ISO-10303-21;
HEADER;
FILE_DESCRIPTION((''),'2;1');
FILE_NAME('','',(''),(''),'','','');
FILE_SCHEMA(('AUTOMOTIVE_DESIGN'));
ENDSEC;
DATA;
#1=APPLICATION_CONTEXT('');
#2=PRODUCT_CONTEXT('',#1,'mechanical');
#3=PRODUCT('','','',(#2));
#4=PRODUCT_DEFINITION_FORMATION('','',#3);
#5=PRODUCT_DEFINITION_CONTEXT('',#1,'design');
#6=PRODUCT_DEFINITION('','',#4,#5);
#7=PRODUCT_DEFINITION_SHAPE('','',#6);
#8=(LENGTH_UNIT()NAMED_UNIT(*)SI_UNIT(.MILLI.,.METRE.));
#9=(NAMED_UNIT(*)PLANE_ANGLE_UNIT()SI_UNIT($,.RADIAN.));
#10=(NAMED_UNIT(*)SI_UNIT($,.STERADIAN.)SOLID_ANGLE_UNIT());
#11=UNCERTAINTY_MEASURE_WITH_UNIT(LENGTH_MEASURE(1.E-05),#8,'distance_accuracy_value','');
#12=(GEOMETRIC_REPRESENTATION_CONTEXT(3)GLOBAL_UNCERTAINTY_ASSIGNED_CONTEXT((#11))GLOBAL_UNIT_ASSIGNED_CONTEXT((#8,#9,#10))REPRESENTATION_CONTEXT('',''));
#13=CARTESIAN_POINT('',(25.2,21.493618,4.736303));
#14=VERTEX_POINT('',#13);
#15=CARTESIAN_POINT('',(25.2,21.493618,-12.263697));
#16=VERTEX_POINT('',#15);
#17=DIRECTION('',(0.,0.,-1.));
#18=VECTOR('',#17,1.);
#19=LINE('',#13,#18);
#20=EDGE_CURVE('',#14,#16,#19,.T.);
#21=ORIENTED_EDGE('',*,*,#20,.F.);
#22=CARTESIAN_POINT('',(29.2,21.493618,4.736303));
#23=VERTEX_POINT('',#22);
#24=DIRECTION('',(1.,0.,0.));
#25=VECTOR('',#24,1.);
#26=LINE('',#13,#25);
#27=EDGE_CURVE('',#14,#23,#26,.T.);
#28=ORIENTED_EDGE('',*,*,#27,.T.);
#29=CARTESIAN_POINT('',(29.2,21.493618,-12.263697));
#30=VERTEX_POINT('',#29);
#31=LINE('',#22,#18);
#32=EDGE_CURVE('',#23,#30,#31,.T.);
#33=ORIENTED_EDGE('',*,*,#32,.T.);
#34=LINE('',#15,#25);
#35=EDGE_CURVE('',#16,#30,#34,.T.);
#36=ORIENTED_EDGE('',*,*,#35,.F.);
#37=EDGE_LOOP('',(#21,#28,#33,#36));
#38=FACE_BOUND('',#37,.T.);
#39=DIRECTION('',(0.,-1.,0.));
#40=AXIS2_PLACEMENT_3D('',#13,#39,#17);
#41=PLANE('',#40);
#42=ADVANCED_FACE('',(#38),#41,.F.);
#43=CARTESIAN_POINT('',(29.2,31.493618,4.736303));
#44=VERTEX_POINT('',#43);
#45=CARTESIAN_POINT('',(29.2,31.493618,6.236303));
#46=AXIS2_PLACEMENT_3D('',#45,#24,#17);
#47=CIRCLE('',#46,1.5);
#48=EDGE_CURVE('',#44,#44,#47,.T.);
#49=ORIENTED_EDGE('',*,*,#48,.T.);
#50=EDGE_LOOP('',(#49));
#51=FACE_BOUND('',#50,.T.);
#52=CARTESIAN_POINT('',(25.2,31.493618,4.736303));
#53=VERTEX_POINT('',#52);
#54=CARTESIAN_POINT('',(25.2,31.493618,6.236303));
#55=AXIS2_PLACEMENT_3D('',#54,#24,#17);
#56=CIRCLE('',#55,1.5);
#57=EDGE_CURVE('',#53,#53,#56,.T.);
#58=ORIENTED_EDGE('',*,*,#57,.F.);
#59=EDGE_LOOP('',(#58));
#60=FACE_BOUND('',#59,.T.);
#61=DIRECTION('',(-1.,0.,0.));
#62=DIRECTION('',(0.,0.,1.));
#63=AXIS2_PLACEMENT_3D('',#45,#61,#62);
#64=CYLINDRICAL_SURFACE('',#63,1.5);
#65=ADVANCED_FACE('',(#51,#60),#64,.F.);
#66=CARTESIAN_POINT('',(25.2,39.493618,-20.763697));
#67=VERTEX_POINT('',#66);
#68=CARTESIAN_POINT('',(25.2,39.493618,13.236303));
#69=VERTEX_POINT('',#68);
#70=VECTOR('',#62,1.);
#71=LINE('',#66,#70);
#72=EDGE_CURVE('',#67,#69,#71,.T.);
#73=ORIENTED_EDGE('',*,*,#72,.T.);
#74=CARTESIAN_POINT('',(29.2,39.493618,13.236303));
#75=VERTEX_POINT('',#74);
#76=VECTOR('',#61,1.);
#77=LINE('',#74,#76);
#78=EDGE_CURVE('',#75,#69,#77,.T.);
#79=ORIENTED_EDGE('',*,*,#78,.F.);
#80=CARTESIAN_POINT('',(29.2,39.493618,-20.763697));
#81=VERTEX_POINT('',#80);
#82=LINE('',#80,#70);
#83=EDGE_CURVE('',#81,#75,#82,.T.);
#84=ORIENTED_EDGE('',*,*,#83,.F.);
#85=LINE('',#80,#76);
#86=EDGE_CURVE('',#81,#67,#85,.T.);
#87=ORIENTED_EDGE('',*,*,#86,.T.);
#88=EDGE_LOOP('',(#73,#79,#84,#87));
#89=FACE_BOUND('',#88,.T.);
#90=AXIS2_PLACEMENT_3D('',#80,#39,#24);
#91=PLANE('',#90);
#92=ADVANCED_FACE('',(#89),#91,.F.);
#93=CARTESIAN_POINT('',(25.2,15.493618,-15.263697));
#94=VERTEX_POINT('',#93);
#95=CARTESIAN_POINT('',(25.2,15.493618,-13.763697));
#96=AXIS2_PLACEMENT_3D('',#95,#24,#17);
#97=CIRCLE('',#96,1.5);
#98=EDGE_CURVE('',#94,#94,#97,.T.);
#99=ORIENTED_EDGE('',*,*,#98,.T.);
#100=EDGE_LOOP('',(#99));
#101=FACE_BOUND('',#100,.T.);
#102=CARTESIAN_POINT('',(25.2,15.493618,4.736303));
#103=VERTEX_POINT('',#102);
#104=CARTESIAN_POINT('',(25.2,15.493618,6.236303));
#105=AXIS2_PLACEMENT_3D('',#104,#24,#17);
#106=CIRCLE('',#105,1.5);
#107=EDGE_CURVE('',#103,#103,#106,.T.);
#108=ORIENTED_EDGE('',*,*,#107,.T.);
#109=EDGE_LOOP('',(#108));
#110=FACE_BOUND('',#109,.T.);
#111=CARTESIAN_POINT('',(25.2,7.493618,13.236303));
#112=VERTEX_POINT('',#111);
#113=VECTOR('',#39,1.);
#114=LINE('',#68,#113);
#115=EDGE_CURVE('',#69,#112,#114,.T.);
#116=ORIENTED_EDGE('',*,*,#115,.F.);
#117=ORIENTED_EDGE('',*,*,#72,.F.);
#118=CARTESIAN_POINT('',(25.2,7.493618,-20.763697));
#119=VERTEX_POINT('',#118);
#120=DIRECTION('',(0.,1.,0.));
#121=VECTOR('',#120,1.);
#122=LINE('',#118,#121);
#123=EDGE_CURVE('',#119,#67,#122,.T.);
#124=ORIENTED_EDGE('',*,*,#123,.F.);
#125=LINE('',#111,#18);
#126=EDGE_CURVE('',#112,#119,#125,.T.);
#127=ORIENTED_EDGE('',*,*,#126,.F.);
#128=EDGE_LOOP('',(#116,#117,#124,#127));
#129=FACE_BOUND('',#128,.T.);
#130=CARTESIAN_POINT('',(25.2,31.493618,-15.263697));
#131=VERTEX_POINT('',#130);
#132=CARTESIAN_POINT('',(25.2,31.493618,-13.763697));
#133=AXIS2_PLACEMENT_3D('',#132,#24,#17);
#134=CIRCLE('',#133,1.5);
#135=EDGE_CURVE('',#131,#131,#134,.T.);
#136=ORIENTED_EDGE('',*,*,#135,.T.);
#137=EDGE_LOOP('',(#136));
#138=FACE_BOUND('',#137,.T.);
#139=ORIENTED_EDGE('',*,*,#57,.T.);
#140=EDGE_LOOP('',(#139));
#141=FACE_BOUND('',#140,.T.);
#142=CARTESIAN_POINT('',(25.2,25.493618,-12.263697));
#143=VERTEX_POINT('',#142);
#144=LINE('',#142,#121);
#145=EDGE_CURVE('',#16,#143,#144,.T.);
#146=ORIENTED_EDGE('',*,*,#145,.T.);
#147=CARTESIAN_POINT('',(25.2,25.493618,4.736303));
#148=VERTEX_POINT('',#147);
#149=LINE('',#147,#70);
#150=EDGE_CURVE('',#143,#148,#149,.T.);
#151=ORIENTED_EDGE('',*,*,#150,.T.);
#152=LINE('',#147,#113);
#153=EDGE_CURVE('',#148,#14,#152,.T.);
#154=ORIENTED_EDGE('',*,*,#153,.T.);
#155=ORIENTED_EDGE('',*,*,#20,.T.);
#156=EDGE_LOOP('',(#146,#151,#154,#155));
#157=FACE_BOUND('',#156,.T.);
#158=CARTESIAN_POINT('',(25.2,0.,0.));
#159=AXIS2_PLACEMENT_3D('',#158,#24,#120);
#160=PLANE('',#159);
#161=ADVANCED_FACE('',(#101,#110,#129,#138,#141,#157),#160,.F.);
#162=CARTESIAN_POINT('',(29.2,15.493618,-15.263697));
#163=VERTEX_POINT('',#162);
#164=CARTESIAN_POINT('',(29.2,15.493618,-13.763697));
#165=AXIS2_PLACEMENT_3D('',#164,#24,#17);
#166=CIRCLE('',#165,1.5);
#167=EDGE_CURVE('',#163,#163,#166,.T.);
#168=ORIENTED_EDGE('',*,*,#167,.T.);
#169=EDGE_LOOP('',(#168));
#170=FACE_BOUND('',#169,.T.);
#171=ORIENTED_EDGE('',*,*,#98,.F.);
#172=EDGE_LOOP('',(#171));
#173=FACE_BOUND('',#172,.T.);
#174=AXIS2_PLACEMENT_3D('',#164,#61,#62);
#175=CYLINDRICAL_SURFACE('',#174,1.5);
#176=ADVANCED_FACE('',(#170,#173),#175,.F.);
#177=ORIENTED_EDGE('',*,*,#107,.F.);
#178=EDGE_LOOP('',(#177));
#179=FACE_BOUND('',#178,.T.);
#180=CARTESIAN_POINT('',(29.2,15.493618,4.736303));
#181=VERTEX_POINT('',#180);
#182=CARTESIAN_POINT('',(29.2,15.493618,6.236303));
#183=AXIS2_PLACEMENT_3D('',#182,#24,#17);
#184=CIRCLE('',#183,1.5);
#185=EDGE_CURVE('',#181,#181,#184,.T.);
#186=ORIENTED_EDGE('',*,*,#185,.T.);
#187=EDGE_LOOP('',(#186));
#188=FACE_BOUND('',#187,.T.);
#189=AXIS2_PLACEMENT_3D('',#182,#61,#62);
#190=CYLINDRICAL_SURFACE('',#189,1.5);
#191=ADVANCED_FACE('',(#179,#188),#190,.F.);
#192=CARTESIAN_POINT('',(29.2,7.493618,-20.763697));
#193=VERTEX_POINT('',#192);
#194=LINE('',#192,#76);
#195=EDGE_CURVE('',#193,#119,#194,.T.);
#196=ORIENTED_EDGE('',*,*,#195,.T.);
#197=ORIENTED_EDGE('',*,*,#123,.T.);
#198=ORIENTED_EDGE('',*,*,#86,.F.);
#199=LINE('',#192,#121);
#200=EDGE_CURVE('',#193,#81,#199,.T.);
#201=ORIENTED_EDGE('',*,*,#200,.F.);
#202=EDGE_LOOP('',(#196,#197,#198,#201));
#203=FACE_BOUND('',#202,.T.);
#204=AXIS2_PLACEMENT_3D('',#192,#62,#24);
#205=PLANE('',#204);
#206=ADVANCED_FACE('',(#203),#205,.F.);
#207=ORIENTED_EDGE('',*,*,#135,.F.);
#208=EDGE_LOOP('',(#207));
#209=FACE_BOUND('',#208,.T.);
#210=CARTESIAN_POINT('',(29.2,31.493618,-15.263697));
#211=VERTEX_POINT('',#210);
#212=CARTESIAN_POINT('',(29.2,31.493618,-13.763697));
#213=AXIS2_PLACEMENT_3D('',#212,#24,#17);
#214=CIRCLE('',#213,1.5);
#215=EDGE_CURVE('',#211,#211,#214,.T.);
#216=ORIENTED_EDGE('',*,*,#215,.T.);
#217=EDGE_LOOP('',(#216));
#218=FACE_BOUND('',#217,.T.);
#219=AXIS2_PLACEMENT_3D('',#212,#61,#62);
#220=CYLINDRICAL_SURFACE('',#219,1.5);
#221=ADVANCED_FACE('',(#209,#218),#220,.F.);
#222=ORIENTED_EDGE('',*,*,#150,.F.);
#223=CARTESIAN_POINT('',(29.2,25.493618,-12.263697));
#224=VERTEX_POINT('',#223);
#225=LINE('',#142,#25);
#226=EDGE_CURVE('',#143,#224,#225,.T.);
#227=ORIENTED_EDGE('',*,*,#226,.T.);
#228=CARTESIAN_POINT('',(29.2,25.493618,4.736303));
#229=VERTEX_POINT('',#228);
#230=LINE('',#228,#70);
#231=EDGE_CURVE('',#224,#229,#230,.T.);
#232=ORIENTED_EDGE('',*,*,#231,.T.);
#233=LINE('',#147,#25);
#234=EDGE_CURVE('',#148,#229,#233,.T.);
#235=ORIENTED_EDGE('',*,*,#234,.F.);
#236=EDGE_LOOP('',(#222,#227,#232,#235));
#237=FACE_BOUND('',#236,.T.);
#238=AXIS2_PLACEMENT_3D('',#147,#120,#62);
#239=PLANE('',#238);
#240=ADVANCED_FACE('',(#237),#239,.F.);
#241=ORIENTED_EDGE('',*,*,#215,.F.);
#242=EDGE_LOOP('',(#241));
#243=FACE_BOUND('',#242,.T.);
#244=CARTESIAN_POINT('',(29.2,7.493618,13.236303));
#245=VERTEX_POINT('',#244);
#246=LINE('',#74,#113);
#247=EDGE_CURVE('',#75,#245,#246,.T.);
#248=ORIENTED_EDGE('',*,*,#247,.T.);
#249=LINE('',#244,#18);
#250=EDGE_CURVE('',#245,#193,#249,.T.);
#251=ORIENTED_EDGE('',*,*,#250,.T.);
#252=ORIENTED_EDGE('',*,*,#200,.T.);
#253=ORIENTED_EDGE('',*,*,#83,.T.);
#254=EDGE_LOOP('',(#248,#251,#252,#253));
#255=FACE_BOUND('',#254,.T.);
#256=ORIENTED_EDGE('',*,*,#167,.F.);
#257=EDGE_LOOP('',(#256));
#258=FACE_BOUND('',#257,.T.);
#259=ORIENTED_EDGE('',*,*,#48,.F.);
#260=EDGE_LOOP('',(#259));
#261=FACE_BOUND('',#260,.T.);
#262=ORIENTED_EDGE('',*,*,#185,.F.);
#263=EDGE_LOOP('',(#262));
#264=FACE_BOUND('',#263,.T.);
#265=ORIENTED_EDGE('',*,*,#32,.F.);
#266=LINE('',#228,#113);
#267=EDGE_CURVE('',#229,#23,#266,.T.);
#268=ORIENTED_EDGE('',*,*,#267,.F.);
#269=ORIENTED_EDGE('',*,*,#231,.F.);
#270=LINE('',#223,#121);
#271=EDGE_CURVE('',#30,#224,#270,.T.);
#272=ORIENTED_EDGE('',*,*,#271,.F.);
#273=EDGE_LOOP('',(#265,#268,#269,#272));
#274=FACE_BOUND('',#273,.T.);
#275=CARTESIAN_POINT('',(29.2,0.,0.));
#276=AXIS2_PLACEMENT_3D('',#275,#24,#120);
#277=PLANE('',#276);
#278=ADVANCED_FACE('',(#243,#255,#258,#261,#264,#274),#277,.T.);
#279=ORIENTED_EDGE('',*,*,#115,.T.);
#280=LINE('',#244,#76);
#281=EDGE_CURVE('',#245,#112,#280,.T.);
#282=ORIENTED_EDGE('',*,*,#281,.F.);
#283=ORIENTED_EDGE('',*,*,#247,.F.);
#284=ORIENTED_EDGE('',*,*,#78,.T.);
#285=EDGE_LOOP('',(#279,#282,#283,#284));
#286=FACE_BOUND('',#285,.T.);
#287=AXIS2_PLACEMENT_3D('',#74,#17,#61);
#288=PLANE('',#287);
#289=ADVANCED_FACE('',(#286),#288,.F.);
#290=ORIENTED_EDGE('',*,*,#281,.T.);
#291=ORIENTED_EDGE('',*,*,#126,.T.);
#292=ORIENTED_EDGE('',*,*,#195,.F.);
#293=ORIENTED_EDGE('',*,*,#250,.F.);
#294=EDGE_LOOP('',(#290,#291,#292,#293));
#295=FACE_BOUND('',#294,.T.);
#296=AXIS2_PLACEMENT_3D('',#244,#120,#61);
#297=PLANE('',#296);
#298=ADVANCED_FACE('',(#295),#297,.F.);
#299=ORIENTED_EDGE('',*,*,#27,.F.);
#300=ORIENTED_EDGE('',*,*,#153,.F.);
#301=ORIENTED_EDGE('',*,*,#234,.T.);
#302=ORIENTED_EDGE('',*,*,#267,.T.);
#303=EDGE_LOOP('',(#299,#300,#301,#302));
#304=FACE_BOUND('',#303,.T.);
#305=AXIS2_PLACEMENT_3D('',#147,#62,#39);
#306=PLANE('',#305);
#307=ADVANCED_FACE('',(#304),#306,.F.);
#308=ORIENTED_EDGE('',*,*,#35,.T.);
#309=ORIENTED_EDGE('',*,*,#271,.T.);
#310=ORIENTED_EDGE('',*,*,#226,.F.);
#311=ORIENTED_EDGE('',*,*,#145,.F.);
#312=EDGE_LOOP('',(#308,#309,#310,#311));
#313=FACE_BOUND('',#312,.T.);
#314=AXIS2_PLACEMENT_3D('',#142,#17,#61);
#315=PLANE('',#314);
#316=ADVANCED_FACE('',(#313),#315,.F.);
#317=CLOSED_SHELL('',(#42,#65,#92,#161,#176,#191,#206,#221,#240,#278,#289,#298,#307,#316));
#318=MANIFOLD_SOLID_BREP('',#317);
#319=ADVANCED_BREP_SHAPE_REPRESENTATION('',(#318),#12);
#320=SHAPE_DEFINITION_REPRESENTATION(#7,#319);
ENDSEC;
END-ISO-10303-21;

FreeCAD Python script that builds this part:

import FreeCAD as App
import Part
import Sketcher
Q = App.Units.Quantity


def add_polygon(sketch, points):
    """Adds a closed chain of lines whose ends are joined by coincident constraints."""
    first, n = sketch.GeometryCount, len(points)
    for a, b in zip(points, points[1:] + points[:1]):
        sketch.addGeometry(Part.LineSegment(App.Vector(*a, 0), App.Vector(*b, 0)), False)
    for i in range(n):
        sketch.addConstraint(Sketcher.Constraint("Coincident", first + i, 2, first + (i + 1) % n, 1))

doc = App.newDocument("Part")
body = doc.addObject("PartDesign::Body", "Body")

# Sketch on YZ plane
sketch1 = body.newObject("Sketcher::SketchObject", "Sketch")
sketch1.AttachmentSupport = (doc.getObject("YZ_Plane"), [""])
sketch1.MapMode = "FlatFace"
sketch1.AttachmentOffset = App.Placement(App.Vector(0, 0, 25.2), App.Rotation())
add_polygon(sketch1, [(39.5, 13.2), (7.5, 13.2), (7.5, -20.8), (39.5, -20.8)])  # lines 0-3
sketch1.addGeometry(Part.Circle(App.Vector(15.5, 6.2, 0), App.Vector(0, 0, 1), 1.5), False)  # 4
sketch1.addGeometry(Part.Circle(App.Vector(15.5, -13.8, 0), App.Vector(0, 0, 1), 1.5), False)  # 5
sketch1.addGeometry(Part.Circle(App.Vector(31.5, 6.2, 0), App.Vector(0, 0, 1), 1.5), False)  # 6
sketch1.addGeometry(Part.Circle(App.Vector(31.5, -13.8, 0), App.Vector(0, 0, 1), 1.5), False)  # 7
sketch1.addConstraint([
    Sketcher.Constraint("Horizontal", 0),
    Sketcher.Constraint("Vertical", 1),
    Sketcher.Constraint("Horizontal", 2),
    Sketcher.Constraint("Vertical", 3),
    Sketcher.Constraint("Equal", 4, 5),
    Sketcher.Constraint("Equal", 5, 6),
    Sketcher.Constraint("Equal", 6, 7),
    Sketcher.Constraint("Horizontal", 4, 3, 6, 3),
    Sketcher.Constraint("Horizontal", 5, 3, 7, 3),
    Sketcher.Constraint("Vertical", 4, 3, 5, 3),
    Sketcher.Constraint("Vertical", 6, 3, 7, 3),
    Sketcher.Constraint("Diameter", 4, Q("3 mm")),
    Sketcher.Constraint("DistanceX", 0, 2, 0, 1, Q("32 mm")),
    Sketcher.Constraint("DistanceY", 1, 2, 1, 1, Q("34 mm")),
    Sketcher.Constraint("DistanceY", 5, 3, 4, 3, Q("20 mm")),
    Sketcher.Constraint("DistanceX", 4, 3, 6, 3, Q("16 mm")),
    Sketcher.Constraint("DistanceX", 0, 2, 4, 3, Q("8 mm")),
    Sketcher.Constraint("DistanceY", 4, 3, 0, 2, Q("7 mm")),
    Sketcher.Constraint("DistanceX", -1, 1, 4, 3, Q("15.493618 mm")),
    Sketcher.Constraint("DistanceY", -1, 1, 4, 3, Q("6.236303 mm")),
])
pad1 = body.newObject("PartDesign::Pad", "Pad")
pad1.Profile = sketch1
pad1.Length = 4

# Sketch on YZ plane
sketch2 = body.newObject("Sketcher::SketchObject", "Sketch001")
sketch2.AttachmentSupport = (doc.getObject("YZ_Plane"), [""])
sketch2.MapMode = "FlatFace"
sketch2.AttachmentOffset = App.Placement(App.Vector(0, 0, 29.2), App.Rotation())
add_polygon(sketch2, [(25.5, 4.7), (21.5, 4.7), (21.5, -12.3), (25.5, -12.3)])  # lines 0-3
sketch2.addConstraint([
    Sketcher.Constraint("Horizontal", 0),
    Sketcher.Constraint("Vertical", 1),
    Sketcher.Constraint("Horizontal", 2),
    Sketcher.Constraint("Vertical", 3),
    Sketcher.Constraint("DistanceX", 0, 2, 0, 1, Q("4 mm")),
    Sketcher.Constraint("DistanceY", 1, 2, 1, 1, Q("17 mm")),
    Sketcher.Constraint("DistanceX", -1, 1, 0, 2, Q("21.493618 mm")),
    Sketcher.Constraint("DistanceY", -1, 1, 0, 2, Q("4.736303 mm")),
])
pocket1 = body.newObject("PartDesign::Pocket", "Pocket")
pocket1.Profile = sketch2
pocket1.Type = "ThroughAll"

doc.recompute()
